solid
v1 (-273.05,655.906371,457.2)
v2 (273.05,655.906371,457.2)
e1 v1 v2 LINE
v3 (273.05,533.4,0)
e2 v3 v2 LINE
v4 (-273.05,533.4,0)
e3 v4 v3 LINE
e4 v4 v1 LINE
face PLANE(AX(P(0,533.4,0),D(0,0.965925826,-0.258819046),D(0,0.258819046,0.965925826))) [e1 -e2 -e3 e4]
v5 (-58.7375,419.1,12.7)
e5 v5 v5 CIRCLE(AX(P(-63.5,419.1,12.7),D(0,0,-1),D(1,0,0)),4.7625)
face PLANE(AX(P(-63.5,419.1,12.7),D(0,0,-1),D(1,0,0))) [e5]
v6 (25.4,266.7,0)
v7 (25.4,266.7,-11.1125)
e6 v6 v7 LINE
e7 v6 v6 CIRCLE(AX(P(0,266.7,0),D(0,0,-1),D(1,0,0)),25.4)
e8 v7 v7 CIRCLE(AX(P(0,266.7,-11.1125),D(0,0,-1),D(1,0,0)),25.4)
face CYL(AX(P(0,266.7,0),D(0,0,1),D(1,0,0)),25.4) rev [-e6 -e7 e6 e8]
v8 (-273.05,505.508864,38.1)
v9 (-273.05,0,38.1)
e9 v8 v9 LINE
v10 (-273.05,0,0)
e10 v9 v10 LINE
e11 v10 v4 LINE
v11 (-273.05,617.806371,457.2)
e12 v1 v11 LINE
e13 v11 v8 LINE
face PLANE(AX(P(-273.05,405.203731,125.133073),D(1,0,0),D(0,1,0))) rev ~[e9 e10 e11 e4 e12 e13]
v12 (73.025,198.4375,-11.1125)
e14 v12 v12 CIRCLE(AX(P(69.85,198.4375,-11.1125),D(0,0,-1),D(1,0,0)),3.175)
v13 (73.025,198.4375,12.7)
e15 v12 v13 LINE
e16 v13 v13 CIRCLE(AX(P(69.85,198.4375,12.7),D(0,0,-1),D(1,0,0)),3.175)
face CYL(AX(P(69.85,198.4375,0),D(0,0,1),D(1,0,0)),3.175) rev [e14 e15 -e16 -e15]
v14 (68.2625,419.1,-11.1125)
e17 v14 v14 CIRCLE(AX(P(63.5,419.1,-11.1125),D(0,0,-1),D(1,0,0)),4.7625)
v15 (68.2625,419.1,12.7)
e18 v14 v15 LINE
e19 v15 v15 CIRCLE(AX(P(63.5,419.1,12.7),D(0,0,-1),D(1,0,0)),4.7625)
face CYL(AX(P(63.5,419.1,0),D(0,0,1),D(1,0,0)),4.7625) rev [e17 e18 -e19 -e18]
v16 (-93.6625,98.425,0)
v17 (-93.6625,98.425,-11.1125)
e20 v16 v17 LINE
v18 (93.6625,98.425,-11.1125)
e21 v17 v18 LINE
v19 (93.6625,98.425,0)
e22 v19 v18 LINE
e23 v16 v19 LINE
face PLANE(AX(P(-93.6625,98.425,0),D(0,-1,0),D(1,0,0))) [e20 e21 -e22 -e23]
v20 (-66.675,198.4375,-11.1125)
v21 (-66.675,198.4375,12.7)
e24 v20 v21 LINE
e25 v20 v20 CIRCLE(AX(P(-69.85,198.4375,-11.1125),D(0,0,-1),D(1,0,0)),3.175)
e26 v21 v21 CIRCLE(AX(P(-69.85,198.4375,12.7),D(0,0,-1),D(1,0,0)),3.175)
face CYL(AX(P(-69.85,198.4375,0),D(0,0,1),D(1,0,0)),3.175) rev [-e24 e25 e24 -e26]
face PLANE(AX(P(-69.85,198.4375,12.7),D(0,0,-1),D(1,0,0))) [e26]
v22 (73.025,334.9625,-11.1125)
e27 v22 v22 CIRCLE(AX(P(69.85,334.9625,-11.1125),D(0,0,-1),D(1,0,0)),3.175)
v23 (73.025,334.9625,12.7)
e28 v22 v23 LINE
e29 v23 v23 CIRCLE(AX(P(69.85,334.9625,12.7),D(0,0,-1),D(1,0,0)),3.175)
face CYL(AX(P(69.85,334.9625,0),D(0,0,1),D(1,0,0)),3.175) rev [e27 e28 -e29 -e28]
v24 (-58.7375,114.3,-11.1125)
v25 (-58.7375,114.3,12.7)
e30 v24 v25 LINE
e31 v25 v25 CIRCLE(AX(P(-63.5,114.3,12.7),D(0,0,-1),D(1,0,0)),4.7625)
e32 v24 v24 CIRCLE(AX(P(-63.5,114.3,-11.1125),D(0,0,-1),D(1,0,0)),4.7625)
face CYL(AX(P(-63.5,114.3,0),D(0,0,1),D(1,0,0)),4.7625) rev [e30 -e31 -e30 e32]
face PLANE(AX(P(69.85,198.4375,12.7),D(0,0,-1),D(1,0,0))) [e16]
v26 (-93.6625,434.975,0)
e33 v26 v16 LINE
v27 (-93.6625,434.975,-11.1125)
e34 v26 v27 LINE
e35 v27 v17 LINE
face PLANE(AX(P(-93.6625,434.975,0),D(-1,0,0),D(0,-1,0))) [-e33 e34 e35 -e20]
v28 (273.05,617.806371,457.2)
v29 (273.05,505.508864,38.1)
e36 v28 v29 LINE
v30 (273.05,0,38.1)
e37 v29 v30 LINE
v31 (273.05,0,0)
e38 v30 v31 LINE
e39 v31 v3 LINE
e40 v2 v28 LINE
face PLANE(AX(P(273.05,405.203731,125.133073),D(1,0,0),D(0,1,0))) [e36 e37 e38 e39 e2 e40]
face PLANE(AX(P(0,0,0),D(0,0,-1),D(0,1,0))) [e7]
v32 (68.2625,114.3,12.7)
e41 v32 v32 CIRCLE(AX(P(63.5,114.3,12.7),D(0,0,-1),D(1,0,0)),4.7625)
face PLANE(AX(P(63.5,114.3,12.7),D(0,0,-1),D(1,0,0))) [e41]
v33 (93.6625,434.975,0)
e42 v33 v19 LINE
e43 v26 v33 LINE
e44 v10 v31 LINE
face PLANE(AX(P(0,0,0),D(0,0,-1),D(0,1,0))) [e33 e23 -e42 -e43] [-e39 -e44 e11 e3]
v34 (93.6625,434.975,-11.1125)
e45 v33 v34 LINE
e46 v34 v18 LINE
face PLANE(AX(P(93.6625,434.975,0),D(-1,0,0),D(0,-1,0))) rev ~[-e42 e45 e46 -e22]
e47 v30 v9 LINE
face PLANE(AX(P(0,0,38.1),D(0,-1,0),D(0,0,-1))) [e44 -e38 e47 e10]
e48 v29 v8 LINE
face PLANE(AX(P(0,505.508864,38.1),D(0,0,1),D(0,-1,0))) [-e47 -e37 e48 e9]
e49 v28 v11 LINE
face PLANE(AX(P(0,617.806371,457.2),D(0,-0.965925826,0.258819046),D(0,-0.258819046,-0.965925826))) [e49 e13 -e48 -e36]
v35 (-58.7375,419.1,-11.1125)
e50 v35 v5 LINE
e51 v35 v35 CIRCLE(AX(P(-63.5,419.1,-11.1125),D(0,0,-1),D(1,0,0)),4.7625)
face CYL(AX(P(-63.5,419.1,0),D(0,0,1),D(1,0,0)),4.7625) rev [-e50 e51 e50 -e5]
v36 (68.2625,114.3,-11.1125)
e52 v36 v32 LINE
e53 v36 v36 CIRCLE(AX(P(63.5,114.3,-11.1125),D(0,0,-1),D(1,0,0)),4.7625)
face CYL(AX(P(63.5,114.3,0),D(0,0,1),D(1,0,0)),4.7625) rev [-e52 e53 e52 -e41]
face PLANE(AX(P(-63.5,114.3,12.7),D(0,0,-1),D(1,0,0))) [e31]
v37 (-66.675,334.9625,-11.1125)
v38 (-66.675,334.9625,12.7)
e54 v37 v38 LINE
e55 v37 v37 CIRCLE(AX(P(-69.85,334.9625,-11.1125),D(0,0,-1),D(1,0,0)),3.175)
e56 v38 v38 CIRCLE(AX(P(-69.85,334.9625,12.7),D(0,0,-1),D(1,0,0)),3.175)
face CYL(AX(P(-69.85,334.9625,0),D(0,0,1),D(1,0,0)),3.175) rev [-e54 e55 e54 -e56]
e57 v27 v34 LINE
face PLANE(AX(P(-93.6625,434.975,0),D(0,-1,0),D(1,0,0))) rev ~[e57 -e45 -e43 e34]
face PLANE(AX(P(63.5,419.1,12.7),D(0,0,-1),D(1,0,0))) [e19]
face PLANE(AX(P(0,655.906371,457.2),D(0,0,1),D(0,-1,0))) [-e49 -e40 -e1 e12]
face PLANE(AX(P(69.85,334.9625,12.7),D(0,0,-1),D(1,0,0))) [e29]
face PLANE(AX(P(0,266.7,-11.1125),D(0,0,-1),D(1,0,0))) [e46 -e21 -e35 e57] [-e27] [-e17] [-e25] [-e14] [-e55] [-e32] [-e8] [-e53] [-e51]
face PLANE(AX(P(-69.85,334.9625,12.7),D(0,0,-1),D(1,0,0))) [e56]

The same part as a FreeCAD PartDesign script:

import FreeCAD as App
import Part
import Sketcher
from FreeCAD import Vector
Q = App.Units.Quantity


def add_polygon(sketch, points):
    """Adds a closed chain of lines whose ends are joined by coincident constraints."""
    first, n = sketch.GeometryCount, len(points)
    for a, b in zip(points, points[1:] + points[:1]):
        sketch.addGeometry(Part.LineSegment(App.Vector(*a, 0), App.Vector(*b, 0)), False)
    for i in range(n):
        sketch.addConstraint(Sketcher.Constraint("Coincident", first + i, 2, first + (i + 1) % n, 1))

doc = App.newDocument("Part")
params = doc.addObject("Spreadsheet::Sheet", "Params")
for row, (alias, value) in enumerate([
    ("sketch1_width", "21 in"),
    ("sketch1_width2", "1.5 in"),
    ("pad1_length", "10.75 in"),
    ("pad1_length2", "10.75 in"),
    ("sketch2_diameter", "0.25 in"),
    ("sketch2_diameter2", "0.375 in"),
    ("pocket1_length", "0.5 in"),
    ("sketch3_diameter", "2 in"),
    ("sketch3_diameter2", "0.25 in"),
    ("sketch3_diameter3", "0.375 in"),
    ("sketch3_height", "13.25 in"),
    ("sketch3_width", "7.375 in"),
    ("pad2_length", "0.4375 in"),
], start=1):
    params.set(f"A{row}", alias)
    params.set(f"B{row}", "=" + value)
    params.setAlias(f"B{row}", alias)

body = doc.addObject("PartDesign::Body", "Body")

sketch1 = body.newObject("Sketcher::SketchObject", "Sketch")
sketch1.AttachmentSupport = (doc.getObject("YZ_Plane"), [""])
sketch1.MapMode = "FlatFace"
add_polygon(sketch1, [(0, 38.1), (0, 0), (533.4, 0), (655.906371, 457.2), (617.806371, 457.2), (505.508864, 38.1)])
sketch1.addConstraint(Sketcher.Constraint("Vertical", 0))
sketch1.addConstraint(Sketcher.Constraint("Horizontal", 1))
sketch1.addConstraint(Sketcher.Constraint("Horizontal", 3))
sketch1.addConstraint(Sketcher.Constraint("Horizontal", 5))
sketch1.addConstraint(Sketcher.Constraint("Coincident", 0, 2, -1, 1))
sketch1.addConstraint(Sketcher.Constraint("Parallel", 2, 4))
sketch1.addConstraint(Sketcher.Constraint("Equal", 3, 0))
sketch1.addConstraint(Sketcher.Constraint("DistanceX", 1, 1, 1, 2, Q("21 in")))
sketch1.addConstraint(Sketcher.Constraint("DistanceX", 3, 2, 3, 1, Q("1.5 in")))
sketch1.addConstraint(Sketcher.Constraint("DistanceY", -1, 1, 2, 2, Q("18 in")))
sketch1.addConstraint(Sketcher.Constraint("Angle", 2, Q("75 deg")))
sketch1.setExpression("Constraints[13]", "Params.sketch1_width")
sketch1.setExpression("Constraints[14]", "Params.sketch1_width2")
pad1 = body.newObject("PartDesign::Pad", "Pad")
pad1.Profile = sketch1
pad1.Type = "TwoLengths"
pad1.setExpression("Length", "Params.pad1_length")
pad1.setExpression("Length2", "Params.pad1_length2")

sketch2 = body.newObject("Sketcher::SketchObject", "Sketch001")
sketch2.AttachmentSupport = (doc.getObject("XY_Plane"), [""])
sketch2.MapMode = "FlatFace"
sketch2.addGeometry(Part.Circle(Vector(-63.5, 114.3, 0), Vector(0, 0, 1), 4.7625), False)
sketch2.addGeometry(Part.Circle(Vector(-63.5, 419.1, 0), Vector(0, 0, 1), 4.7625), False)
sketch2.addGeometry(Part.Circle(Vector(63.5, 419.1, 0), Vector(0, 0, 1), 4.7625), False)
sketch2.addGeometry(Part.Circle(Vector(69.85, 334.9625, 0), Vector(0, 0, 1), 3.175), False)
sketch2.addGeometry(Part.Circle(Vector(69.85, 198.4375, 0), Vector(0, 0, 1), 3.175), False)
sketch2.addGeometry(Part.Circle(Vector(-69.85, 198.4375, 0), Vector(0, 0, 1), 3.175), False)
sketch2.addGeometry(Part.Circle(Vector(-69.85, 334.9625, 0), Vector(0, 0, 1), 3.175), False)
sketch2.addGeometry(Part.Circle(Vector(63.5, 114.3, 0), Vector(0, 0, 1), 4.7625), False)
sketch2.addConstraint(Sketcher.Constraint("Equal", 0, 1))
sketch2.addConstraint(Sketcher.Constraint("Equal", 1, 2))
sketch2.addConstraint(Sketcher.Constraint("Equal", 3, 4))
sketch2.addConstraint(Sketcher.Constraint("Equal", 4, 5))
sketch2.addConstraint(Sketcher.Constraint("Equal", 5, 6))
sketch2.addConstraint(Sketcher.Constraint("Equal", 2, 7))
sketch2.addConstraint(Sketcher.Constraint("Symmetric", 1, 3, 2, 3, -2))
sketch2.addConstraint(Sketcher.Constraint("Symmetric", 4, 3, 5, 3, -2))
sketch2.addConstraint(Sketcher.Constraint("Symmetric", 3, 3, 6, 3, -2))
sketch2.addConstraint(Sketcher.Constraint("Symmetric", 0, 3, 7, 3, -2))
sketch2.addConstraint(Sketcher.Constraint("Vertical", 0, 3, 1, 3))
sketch2.addConstraint(Sketcher.Constraint("Vertical", 3, 3, 4, 3))
sketch2.addConstraint(Sketcher.Constraint("Diameter", 3, Q("0.25 in")))
sketch2.addConstraint(Sketcher.Constraint("Diameter", 0, Q("0.375 in")))
sketch2.addConstraint(Sketcher.Constraint("DistanceY", 0, 3, 1, 3, Q("12 in")))
sketch2.addConstraint(Sketcher.Constraint("DistanceX", 1, 3, 2, 3, Q("5 in")))
sketch2.addConstraint(Sketcher.Constraint("DistanceY", -1, 1, 0, 3, Q("4.5 in")))
sketch2.addConstraint(Sketcher.Constraint("DistanceX", 5, 3, 4, 3, Q("5.5 in")))
sketch2.addConstraint(Sketcher.Constraint("DistanceY", -1, 1, 3, 3, Q("13.1875 in")))
sketch2.addConstraint(Sketcher.Constraint("DistanceY", -1, 1, 4, 3, Q("7.8125 in")))
sketch2.setExpression("Constraints[12]", "Params.sketch2_diameter")
sketch2.setExpression("Constraints[13]", "Params.sketch2_diameter2")
pocket1 = body.newObject("PartDesign::Pocket", "Pocket")
pocket1.Profile = sketch2
pocket1.setExpression("Length", "Params.pocket1_length")
pocket1.Reversed = True

sketch3 = body.newObject("Sketcher::SketchObject", "Sketch002")
sketch3.AttachmentSupport = (doc.getObject("XY_Plane"), [""])
sketch3.MapMode = "FlatFace"
add_polygon(sketch3, [(-93.6625, 98.425), (-93.6625, 434.975), (93.6625, 434.975), (93.6625, 98.425)])
sketch3.addGeometry(Part.Circle(Vector(-63.5, 419.1, 0), Vector(0, 0, 1), 4.7625), False)
sketch3.addGeometry(Part.Circle(Vector(-69.85, 334.9625, 0), Vector(0, 0, 1), 3.175), False)
sketch3.addGeometry(Part.Circle(Vector(63.5, 419.1, 0), Vector(0, 0, 1), 4.7625), False)
sketch3.addGeometry(Part.Circle(Vector(69.85, 334.9625, 0), Vector(0, 0, 1), 3.175), False)
sketch3.addGeometry(Part.Circle(Vector(-69.85, 198.4375, 0), Vector(0, 0, 1), 3.175), False)
sketch3.addGeometry(Part.Circle(Vector(-63.5, 114.3, 0), Vector(0, 0, 1), 4.7625), False)
sketch3.addGeometry(Part.Circle(Vector(0, 266.7, 0), Vector(0, 0, 1), 25.4), False)
sketch3.addGeometry(Part.Circle(Vector(69.85, 198.4375, 0), Vector(0, 0, 1), 3.175), False)
sketch3.addGeometry(Part.Circle(Vector(63.5, 114.3, 0), Vector(0, 0, 1), 4.7625), False)
sketch3.addConstraint(Sketcher.Constraint("Vertical", 0))
sketch3.addConstraint(Sketcher.Constraint("Horizontal", 1))
sketch3.addConstraint(Sketcher.Constraint("Vertical", 2))
sketch3.addConstraint(Sketcher.Constraint("Horizontal", 3))
sketch3.addConstraint(Sketcher.Constraint("Equal", 4, 6))
sketch3.addConstraint(Sketcher.Constraint("Equal", 5, 7))
sketch3.addConstraint(Sketcher.Constraint("Equal", 7, 8))
sketch3.addConstraint(Sketcher.Constraint("Equal", 6, 9))
sketch3.addConstraint(Sketcher.Constraint("Equal", 8, 11))
sketch3.addConstraint(Sketcher.Constraint("Equal", 9, 12))
sketch3.addConstraint(Sketcher.Constraint("Symmetric", 4, 3, 6, 3, -2))
sketch3.addConstraint(Sketcher.Constraint("Symmetric", 5, 3, 7, 3, -2))
sketch3.addConstraint(Sketcher.Constraint("Symmetric", 8, 3, 11, 3, -2))
sketch3.addConstraint(Sketcher.Constraint("Symmetric", 9, 3, 12, 3, -2))
sketch3.addConstraint(Sketcher.Constraint("PointOnObject", 10, 3, -2))
sketch3.addConstraint(Sketcher.Constraint("Vertical", 5, 3, 8, 3))
sketch3.addConstraint(Sketcher.Constraint("Vertical", 4, 3, 9, 3))
sketch3.addConstraint(Sketcher.Constraint("Diameter", 10, Q("2 in")))
sketch3.addConstraint(Sketcher.Constraint("Diameter", 5, Q("0.25 in")))
sketch3.addConstraint(Sketcher.Constraint("Diameter", 4, Q("0.375 in")))
sketch3.addConstraint(Sketcher.Constraint("DistanceX", 4, 3, 6, 3, Q("5 in")))
sketch3.addConstraint(Sketcher.Constraint("DistanceY", 9, 3, 4, 3, Q("12 in")))
sketch3.addConstraint(Sketcher.Constraint("DistanceY", 9, 3, 10, 3, Q("6 in")))
sketch3.addConstraint(Sketcher.Constraint("DistanceY", 0, 1, 0, 2, Q("13.25 in")))
sketch3.addConstraint(Sketcher.Constraint("DistanceY", -1, 1, 4, 3, Q("16.5 in")))
sketch3.addConstraint(Sketcher.Constraint("DistanceX", 5, 3, 7, 3, Q("5.5 in")))
sketch3.addConstraint(Sketcher.Constraint("DistanceX", 1, 1, 1, 2, Q("7.375 in")))
sketch3.addConstraint(Sketcher.Constraint("DistanceY", -1, 1, 5, 3, Q("13.1875 in")))
sketch3.addConstraint(Sketcher.Constraint("DistanceY", -1, 1, 8, 3, Q("7.8125 in")))
sketch3.addConstraint(Sketcher.Constraint("DistanceX", 0, 2, -1, 1, Q("3.6875 in")))
sketch3.addConstraint(Sketcher.Constraint("DistanceY", -1, 1, 0, 2, Q("17.125 in")))
sketch3.setExpression("Constraints[21]", "Params.sketch3_diameter")
sketch3.setExpression("Constraints[22]", "Params.sketch3_diameter2")
sketch3.setExpression("Constraints[23]", "Params.sketch3_diameter3")
sketch3.setExpression("Constraints[27]", "Params.sketch3_height")
sketch3.setExpression("Constraints[30]", "Params.sketch3_width")
pad2 = body.newObject("PartDesign::Pad", "Pad001")
pad2.Profile = sketch3
pad2.setExpression("Length", "Params.pad2_length")
pad2.Reversed = True

doc.recompute()
